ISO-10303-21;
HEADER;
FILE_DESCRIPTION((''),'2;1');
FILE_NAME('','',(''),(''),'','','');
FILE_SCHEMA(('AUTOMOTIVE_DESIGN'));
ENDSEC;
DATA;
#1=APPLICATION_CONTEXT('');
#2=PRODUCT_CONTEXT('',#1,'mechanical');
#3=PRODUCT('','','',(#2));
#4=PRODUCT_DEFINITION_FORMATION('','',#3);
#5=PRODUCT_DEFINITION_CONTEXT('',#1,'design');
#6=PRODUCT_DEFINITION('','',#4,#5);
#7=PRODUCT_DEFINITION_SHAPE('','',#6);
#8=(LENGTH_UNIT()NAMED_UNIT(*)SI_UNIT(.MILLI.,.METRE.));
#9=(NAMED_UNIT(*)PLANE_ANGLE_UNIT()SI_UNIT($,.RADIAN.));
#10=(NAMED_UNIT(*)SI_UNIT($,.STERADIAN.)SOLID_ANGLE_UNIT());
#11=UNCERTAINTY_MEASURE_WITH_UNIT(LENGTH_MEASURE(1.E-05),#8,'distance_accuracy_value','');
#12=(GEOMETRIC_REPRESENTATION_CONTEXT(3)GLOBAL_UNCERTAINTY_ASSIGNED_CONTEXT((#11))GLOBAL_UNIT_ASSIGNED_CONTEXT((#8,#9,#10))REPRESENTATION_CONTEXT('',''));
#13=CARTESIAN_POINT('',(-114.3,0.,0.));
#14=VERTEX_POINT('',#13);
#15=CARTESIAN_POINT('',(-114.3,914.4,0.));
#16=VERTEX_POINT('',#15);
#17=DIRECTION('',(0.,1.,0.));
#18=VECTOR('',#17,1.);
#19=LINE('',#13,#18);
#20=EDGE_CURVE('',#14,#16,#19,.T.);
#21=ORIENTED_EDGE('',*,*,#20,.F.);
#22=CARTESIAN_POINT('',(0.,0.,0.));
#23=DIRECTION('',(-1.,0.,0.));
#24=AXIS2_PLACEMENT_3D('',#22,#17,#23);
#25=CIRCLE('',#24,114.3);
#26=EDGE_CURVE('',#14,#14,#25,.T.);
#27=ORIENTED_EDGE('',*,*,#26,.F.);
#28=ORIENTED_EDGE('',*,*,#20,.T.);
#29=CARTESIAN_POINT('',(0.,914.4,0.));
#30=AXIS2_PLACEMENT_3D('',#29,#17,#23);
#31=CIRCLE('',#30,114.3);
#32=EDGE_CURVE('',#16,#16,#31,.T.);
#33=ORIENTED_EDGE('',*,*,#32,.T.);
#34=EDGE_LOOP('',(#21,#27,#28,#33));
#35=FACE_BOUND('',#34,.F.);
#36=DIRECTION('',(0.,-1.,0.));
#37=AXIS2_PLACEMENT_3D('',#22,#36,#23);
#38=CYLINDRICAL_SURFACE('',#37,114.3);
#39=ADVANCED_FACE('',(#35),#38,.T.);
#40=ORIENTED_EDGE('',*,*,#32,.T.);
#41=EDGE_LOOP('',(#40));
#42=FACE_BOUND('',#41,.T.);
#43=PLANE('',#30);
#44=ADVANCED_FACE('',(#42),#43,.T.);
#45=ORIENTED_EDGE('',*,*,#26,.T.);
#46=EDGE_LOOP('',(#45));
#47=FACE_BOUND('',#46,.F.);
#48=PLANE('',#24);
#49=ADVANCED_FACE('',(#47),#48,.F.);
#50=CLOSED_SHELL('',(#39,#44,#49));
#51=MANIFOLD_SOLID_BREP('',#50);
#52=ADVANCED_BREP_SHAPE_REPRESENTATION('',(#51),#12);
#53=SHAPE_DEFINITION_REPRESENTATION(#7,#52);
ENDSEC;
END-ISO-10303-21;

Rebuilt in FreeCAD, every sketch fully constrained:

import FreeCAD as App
import Part
import Sketcher
from FreeCAD import Vector
Q = App.Units.Quantity

doc = App.newDocument("Part")
body = doc.addObject("PartDesign::Body", "Body")

# Sketch on XZ plane
sketch1 = doc.addObject("Sketcher::SketchObject", "Sketch")
body.addObject(sketch1)
sketch1.AttachmentSupport = (doc.XZ_Plane, [""])
sketch1.MapMode = "FlatFace"
sketch1.addGeometry(Part.Circle(Vector(0, 0, 0), Vector(0, 0, 1), 114.3), False)
sketch1.addConstraint([
    Sketcher.Constraint("Coincident", 0, 3, -1, 1),
    Sketcher.Constraint("Diameter", 0, Q("9 in")),
])
pad1 = doc.addObject("PartDesign::Pad", "Pad")
body.addObject(pad1)
pad1.Profile = sketch1
pad1.Length = Q("36 in")
pad1.Reversed = True

doc.recompute()
